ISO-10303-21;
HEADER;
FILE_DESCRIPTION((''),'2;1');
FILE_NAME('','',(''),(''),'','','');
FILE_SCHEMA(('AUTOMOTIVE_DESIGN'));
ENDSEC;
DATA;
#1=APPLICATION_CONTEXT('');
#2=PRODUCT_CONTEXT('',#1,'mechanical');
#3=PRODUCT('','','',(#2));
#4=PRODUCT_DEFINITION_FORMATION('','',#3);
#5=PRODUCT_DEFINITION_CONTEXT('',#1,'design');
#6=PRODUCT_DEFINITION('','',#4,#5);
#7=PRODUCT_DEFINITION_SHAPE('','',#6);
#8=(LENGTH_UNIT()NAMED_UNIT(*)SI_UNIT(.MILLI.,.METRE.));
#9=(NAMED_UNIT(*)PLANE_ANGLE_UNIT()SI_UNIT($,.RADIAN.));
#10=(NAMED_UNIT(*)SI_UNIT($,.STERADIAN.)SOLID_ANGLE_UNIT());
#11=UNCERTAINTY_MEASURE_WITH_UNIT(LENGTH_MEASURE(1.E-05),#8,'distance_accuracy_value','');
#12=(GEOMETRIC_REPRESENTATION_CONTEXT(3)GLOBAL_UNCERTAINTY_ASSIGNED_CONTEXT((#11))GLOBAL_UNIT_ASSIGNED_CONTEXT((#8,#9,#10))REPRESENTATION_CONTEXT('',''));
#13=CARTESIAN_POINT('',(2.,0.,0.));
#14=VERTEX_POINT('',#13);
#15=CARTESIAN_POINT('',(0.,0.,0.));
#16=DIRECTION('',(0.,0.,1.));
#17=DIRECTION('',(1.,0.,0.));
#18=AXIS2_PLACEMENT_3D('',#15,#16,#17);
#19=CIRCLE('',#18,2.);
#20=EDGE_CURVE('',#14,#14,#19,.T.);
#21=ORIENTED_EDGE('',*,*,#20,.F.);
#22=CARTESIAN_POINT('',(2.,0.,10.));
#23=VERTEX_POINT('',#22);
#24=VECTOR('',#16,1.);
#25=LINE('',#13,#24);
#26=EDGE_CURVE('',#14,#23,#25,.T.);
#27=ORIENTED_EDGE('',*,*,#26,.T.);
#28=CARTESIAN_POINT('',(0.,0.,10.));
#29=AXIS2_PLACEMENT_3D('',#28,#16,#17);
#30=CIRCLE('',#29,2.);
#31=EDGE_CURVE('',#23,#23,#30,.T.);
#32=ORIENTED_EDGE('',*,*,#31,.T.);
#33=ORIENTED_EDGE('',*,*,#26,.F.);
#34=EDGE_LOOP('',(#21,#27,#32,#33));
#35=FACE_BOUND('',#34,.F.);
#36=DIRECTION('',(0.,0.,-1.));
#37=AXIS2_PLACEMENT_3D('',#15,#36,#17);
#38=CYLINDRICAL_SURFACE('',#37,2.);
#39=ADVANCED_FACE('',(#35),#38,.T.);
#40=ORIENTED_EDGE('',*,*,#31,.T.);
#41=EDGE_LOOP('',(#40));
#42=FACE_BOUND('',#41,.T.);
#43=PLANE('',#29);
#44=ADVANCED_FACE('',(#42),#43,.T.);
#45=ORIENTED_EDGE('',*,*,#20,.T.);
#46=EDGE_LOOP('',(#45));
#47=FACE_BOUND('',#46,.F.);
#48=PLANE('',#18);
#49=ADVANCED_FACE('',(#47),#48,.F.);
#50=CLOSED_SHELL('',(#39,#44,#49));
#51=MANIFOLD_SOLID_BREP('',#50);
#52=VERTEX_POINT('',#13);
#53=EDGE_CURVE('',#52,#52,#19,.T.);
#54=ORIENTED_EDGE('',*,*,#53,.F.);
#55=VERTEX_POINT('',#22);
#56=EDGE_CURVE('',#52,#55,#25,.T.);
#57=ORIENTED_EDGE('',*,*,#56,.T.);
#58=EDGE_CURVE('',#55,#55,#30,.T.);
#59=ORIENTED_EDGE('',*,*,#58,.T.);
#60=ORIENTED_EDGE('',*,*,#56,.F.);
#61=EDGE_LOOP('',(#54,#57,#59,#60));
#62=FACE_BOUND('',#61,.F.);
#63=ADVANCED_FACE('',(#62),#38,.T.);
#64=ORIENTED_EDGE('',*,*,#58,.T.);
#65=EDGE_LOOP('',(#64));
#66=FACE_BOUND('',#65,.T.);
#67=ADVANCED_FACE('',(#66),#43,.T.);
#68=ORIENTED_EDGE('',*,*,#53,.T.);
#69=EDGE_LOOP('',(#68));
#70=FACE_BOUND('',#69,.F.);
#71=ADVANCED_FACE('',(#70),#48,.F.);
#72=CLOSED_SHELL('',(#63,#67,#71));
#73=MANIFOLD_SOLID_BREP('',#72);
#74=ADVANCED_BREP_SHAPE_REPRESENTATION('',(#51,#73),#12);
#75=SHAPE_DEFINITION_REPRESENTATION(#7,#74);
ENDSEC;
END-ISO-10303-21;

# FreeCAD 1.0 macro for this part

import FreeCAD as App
import Part
import Sketcher

V = App.Vector

doc = App.newDocument("Part")
params = doc.addObject("Spreadsheet::Sheet", "Params")
for row, (alias, value) in enumerate([
    ("sketch1_diameter", "4 mm"),
    ("pad1_length", "10 mm"),
    ("sketch2_diameter", "4 mm"),
    ("pad2_length", "10 mm"),
], start=1):
    params.set(f"A{row}", alias)
    params.set(f"B{row}", "=" + value)
    params.setAlias(f"B{row}", alias)

body = doc.addObject("PartDesign::Body", "Body")

# Sketch on XY plane
sketch1 = body.newObject("Sketcher::SketchObject", "Sketch")
sketch1.AttachmentSupport = (doc.getObject("XY_Plane"), [""])
sketch1.MapMode = "FlatFace"
sketch1.addGeometry(Part.Circle(V(0, 0, 0), V(0, 0, 1), 2), False)
sketch1.addConstraint([
    Sketcher.Constraint("Coincident", 0, 3, -1, 1),
    Sketcher.Constraint("Diameter", 0, 4.0),
])
sketch1.setExpression("Constraints[1]", "Params.sketch1_diameter")
pad1 = body.newObject("PartDesign::Pad", "Pad")
pad1.Profile = sketch1
pad1.setExpression("Length", "Params.pad1_length")
body2 = doc.addObject("PartDesign::Body", "Body001")

# Sketch on XY plane
sketch2 = body2.newObject("Sketcher::SketchObject", "Sketch001")
sketch2.AttachmentSupport = (doc.getObject("XY_Plane001"), [""])
sketch2.MapMode = "FlatFace"
sketch2.addGeometry(Part.Circle(V(0, 0, 0), V(0, 0, 1), 2), False)
sketch2.addConstraint([
    Sketcher.Constraint("Coincident", 0, 3, -1, 1),
    Sketcher.Constraint("Diameter", 0, 4.0),
])
sketch2.setExpression("Constraints[1]", "Params.sketch2_diameter")
pad2 = body2.newObject("PartDesign::Pad", "Pad001")
pad2.Profile = sketch2
pad2.setExpression("Length", "Params.pad2_length")

doc.recompute()
